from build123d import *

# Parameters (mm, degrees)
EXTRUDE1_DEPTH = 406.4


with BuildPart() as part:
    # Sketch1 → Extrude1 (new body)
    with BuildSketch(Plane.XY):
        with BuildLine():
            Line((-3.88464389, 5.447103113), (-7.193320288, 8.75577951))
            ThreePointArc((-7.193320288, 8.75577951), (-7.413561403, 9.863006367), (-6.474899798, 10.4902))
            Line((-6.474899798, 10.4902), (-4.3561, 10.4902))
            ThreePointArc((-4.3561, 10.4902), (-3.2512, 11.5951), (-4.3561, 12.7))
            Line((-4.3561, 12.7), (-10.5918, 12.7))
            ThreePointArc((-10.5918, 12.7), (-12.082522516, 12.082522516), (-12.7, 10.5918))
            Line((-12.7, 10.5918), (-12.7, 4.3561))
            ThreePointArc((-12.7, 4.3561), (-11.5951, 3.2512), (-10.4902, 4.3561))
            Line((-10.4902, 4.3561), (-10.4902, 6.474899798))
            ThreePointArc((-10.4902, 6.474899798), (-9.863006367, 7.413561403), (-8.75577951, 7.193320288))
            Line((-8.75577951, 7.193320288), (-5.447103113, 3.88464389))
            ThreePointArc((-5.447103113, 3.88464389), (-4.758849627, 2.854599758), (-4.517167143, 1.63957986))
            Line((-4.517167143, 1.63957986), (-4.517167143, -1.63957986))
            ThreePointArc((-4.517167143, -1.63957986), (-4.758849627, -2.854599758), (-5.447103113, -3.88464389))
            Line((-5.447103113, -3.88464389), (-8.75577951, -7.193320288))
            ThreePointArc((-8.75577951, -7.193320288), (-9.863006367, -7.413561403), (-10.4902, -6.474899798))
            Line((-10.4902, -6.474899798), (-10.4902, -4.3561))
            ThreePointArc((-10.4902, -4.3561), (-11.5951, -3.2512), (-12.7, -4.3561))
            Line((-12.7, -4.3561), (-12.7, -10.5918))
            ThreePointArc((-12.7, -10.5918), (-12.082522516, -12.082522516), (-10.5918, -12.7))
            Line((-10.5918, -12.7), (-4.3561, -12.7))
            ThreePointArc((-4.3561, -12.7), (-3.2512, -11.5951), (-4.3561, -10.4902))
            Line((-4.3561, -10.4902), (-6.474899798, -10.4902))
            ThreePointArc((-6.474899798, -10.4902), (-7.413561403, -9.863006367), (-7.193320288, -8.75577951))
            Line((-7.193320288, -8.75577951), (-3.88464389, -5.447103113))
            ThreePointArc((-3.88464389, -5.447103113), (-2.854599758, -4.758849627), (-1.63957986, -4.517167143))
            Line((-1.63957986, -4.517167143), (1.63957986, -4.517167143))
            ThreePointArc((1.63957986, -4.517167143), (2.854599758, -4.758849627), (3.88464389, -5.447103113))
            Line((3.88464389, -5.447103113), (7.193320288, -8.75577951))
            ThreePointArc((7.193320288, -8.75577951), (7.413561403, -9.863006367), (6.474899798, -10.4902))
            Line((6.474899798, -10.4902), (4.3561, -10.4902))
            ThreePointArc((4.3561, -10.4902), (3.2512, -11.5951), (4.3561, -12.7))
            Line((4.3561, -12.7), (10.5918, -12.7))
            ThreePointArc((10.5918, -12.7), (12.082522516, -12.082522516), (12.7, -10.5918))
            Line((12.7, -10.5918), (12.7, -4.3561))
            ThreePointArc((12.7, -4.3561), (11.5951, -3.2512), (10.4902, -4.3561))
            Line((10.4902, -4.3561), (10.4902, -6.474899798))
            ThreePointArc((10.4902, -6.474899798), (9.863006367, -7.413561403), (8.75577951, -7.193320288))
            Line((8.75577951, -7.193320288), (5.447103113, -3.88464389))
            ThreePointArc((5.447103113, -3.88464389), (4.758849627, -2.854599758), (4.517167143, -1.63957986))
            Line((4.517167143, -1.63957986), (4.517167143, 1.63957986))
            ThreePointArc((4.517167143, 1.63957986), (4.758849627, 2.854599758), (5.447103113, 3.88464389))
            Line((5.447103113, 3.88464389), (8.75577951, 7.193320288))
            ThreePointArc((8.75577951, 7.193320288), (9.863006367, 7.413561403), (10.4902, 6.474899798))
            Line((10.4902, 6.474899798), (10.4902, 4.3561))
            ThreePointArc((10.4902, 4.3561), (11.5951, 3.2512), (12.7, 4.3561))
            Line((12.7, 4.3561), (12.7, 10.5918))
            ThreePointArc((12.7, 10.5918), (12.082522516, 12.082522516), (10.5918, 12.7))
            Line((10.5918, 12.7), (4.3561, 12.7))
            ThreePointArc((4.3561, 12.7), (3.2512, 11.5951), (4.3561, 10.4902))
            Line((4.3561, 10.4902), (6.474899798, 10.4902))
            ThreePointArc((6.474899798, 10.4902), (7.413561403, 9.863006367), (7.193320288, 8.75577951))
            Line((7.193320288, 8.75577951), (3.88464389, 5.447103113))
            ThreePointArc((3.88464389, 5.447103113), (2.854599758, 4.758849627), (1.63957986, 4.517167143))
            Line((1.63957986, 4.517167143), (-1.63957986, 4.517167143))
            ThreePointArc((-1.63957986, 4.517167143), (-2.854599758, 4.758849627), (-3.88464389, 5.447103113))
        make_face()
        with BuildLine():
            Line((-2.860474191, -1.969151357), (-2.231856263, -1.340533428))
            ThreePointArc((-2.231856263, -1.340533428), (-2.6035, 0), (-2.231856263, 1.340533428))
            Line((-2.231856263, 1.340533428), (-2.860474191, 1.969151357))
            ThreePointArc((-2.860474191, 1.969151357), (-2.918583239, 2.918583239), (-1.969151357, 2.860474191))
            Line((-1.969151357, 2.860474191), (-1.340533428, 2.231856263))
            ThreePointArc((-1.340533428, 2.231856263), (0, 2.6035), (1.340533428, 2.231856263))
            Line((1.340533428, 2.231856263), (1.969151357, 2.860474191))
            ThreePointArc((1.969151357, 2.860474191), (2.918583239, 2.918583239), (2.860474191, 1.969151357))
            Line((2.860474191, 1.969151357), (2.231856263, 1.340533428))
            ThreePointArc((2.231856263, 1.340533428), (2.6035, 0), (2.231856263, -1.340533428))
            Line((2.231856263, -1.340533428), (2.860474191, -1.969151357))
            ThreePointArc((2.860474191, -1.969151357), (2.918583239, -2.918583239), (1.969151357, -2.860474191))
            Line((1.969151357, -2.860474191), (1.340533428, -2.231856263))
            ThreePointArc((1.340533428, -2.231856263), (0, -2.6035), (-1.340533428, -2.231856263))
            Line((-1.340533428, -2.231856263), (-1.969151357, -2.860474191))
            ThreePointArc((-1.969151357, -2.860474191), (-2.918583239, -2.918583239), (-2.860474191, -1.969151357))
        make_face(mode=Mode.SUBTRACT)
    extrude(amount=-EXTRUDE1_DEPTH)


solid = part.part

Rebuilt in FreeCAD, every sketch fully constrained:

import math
import FreeCAD as App
import Part
import Sketcher
Q = App.Units.Quantity

doc = App.newDocument("Part")
body = doc.addObject("PartDesign::Body", "Body")

sketch1 = body.newObject("Sketcher::SketchObject", "Sketch")
sketch1.AttachmentSupport = (doc.getObject("XY_Plane"), [""])
sketch1.MapMode = "FlatFace"
sketch1.addGeometry([
    Part.LineSegment(App.Vector(-3.884644, 5.447103, 0), App.Vector(-7.19332, 8.75578, 0)),
    Part.ArcOfCircle(Part.Circle(App.Vector(-6.4749, 9.4742, 0), App.Vector(0, 0, 1), 1.016), math.radians(90), math.radians(225)),
    Part.LineSegment(App.Vector(-6.4749, 10.4902, 0), App.Vector(-4.3561, 10.4902, 0)),
    Part.ArcOfCircle(Part.Circle(App.Vector(-4.3561, 11.5951, 0), App.Vector(0, 0, 1), 1.1049), math.radians(-90), math.radians(90)),
    Part.LineSegment(App.Vector(-4.3561, 12.7, 0), App.Vector(-10.5918, 12.7, 0)),
    Part.ArcOfCircle(Part.Circle(App.Vector(-10.5918, 10.5918, 0), App.Vector(0, 0, 1), 2.1082), math.radians(90), math.radians(180)),
    Part.LineSegment(App.Vector(-12.7, 10.5918, 0), App.Vector(-12.7, 4.3561, 0)),
    Part.ArcOfCircle(Part.Circle(App.Vector(-11.5951, 4.3561, 0), App.Vector(0, 0, 1), 1.1049), math.radians(180), math.radians(360)),
    Part.LineSegment(App.Vector(-10.4902, 4.3561, 0), App.Vector(-10.4902, 6.4749, 0)),
    Part.ArcOfCircle(Part.Circle(App.Vector(-9.4742, 6.4749, 0), App.Vector(0, 0, 1), 1.016), math.radians(45), math.radians(180)),
    Part.LineSegment(App.Vector(-8.75578, 7.19332, 0), App.Vector(-5.447103, 3.884644, 0)),
    Part.ArcOfCircle(Part.Circle(App.Vector(-7.692167, 1.63958, 0), App.Vector(0, 0, 1), 3.175), math.radians(0), math.radians(45)),
    Part.LineSegment(App.Vector(-4.517167, 1.63958, 0), App.Vector(-4.517167, -1.63958, 0)),
    Part.ArcOfCircle(Part.Circle(App.Vector(-7.692167, -1.63958, 0), App.Vector(0, 0, 1), 3.175), math.radians(-45), math.radians(0)),
    Part.LineSegment(App.Vector(-5.447103, -3.884644, 0), App.Vector(-8.75578, -7.19332, 0)),
    Part.ArcOfCircle(Part.Circle(App.Vector(-9.4742, -6.4749, 0), App.Vector(0, 0, 1), 1.016), math.radians(180), math.radians(315)),
    Part.LineSegment(App.Vector(-10.4902, -6.4749, 0), App.Vector(-10.4902, -4.3561, 0)),
    Part.ArcOfCircle(Part.Circle(App.Vector(-11.5951, -4.3561, 0), App.Vector(0, 0, 1), 1.1049), math.radians(0), math.radians(180)),
    Part.LineSegment(App.Vector(-12.7, -4.3561, 0), App.Vector(-12.7, -10.5918, 0)),
    Part.ArcOfCircle(Part.Circle(App.Vector(-10.5918, -10.5918, 0), App.Vector(0, 0, 1), 2.1082), math.radians(180), math.radians(270)),
    Part.LineSegment(App.Vector(-10.5918, -12.7, 0), App.Vector(-4.3561, -12.7, 0)),
    Part.ArcOfCircle(Part.Circle(App.Vector(-4.3561, -11.5951, 0), App.Vector(0, 0, 1), 1.1049), math.radians(-90), math.radians(90)),
    Part.LineSegment(App.Vector(-4.3561, -10.4902, 0), App.Vector(-6.4749, -10.4902, 0)),
    Part.ArcOfCircle(Part.Circle(App.Vector(-6.4749, -9.4742, 0), App.Vector(0, 0, 1), 1.016), math.radians(135), math.radians(270)),
    Part.LineSegment(App.Vector(-7.19332, -8.75578, 0), App.Vector(-3.884644, -5.447103, 0)),
    Part.ArcOfCircle(Part.Circle(App.Vector(-1.63958, -7.692167, 0), App.Vector(0, 0, 1), 3.175), math.radians(90), math.radians(135)),
    Part.LineSegment(App.Vector(-1.63958, -4.517167, 0), App.Vector(1.63958, -4.517167, 0)),
    Part.ArcOfCircle(Part.Circle(App.Vector(1.63958, -7.692167, 0), App.Vector(0, 0, 1), 3.175), math.radians(45), math.radians(90)),
    Part.LineSegment(App.Vector(3.884644, -5.447103, 0), App.Vector(7.19332, -8.75578, 0)),
    Part.ArcOfCircle(Part.Circle(App.Vector(6.4749, -9.4742, 0), App.Vector(0, 0, 1), 1.016), math.radians(-90), math.radians(45)),
    Part.LineSegment(App.Vector(6.4749, -10.4902, 0), App.Vector(4.3561, -10.4902, 0)),
    Part.ArcOfCircle(Part.Circle(App.Vector(4.3561, -11.5951, 0), App.Vector(0, 0, 1), 1.1049), math.radians(90), math.radians(270)),
    Part.LineSegment(App.Vector(4.3561, -12.7, 0), App.Vector(10.5918, -12.7, 0)),
    Part.ArcOfCircle(Part.Circle(App.Vector(10.5918, -10.5918, 0), App.Vector(0, 0, 1), 2.1082), math.radians(-90), math.radians(0)),
    Part.LineSegment(App.Vector(12.7, -10.5918, 0), App.Vector(12.7, -4.3561, 0)),
    Part.ArcOfCircle(Part.Circle(App.Vector(11.5951, -4.3561, 0), App.Vector(0, 0, 1), 1.1049), math.radians(0), math.radians(180)),
    Part.LineSegment(App.Vector(10.4902, -4.3561, 0), App.Vector(10.4902, -6.4749, 0)),
    Part.ArcOfCircle(Part.Circle(App.Vector(9.4742, -6.4749, 0), App.Vector(0, 0, 1), 1.016), math.radians(-135), math.radians(0)),
    Part.LineSegment(App.Vector(8.75578, -7.19332, 0), App.Vector(5.447103, -3.884644, 0)),
    Part.ArcOfCircle(Part.Circle(App.Vector(7.692167, -1.63958, 0), App.Vector(0, 0, 1), 3.175), math.radians(180), math.radians(225)),
    Part.LineSegment(App.Vector(4.517167, -1.63958, 0), App.Vector(4.517167, 1.63958, 0)),
    Part.ArcOfCircle(Part.Circle(App.Vector(7.692167, 1.63958, 0), App.Vector(0, 0, 1), 3.175), math.radians(135), math.radians(180)),
    Part.LineSegment(App.Vector(5.447103, 3.884644, 0), App.Vector(8.75578, 7.19332, 0)),
    Part.ArcOfCircle(Part.Circle(App.Vector(9.4742, 6.4749, 0), App.Vector(0, 0, 1), 1.016), math.radians(0), math.radians(135)),
    Part.LineSegment(App.Vector(10.4902, 6.4749, 0), App.Vector(10.4902, 4.3561, 0)),
    Part.ArcOfCircle(Part.Circle(App.Vector(11.5951, 4.3561, 0), App.Vector(0, 0, 1), 1.1049), math.radians(180), math.radians(360)),
    Part.LineSegment(App.Vector(12.7, 4.3561, 0), App.Vector(12.7, 10.5918, 0)),
    Part.ArcOfCircle(Part.Circle(App.Vector(10.5918, 10.5918, 0), App.Vector(0, 0, 1), 2.1082), math.radians(0), math.radians(90)),
    Part.LineSegment(App.Vector(10.5918, 12.7, 0), App.Vector(4.3561, 12.7, 0)),
    Part.ArcOfCircle(Part.Circle(App.Vector(4.3561, 11.5951, 0), App.Vector(0, 0, 1), 1.1049), math.radians(90), math.radians(270)),
    Part.LineSegment(App.Vector(4.3561, 10.4902, 0), App.Vector(6.4749, 10.4902, 0)),
    Part.ArcOfCircle(Part.Circle(App.Vector(6.4749, 9.4742, 0), App.Vector(0, 0, 1), 1.016), math.radians(-45), math.radians(90)),
    Part.LineSegment(App.Vector(7.19332, 8.75578, 0), App.Vector(3.884644, 5.447103, 0)),
    Part.ArcOfCircle(Part.Circle(App.Vector(1.63958, 7.692167, 0), App.Vector(0, 0, 1), 3.175), math.radians(-90), math.radians(-45)),
    Part.LineSegment(App.Vector(1.63958, 4.517167, 0), App.Vector(-1.63958, 4.517167, 0)),
    Part.ArcOfCircle(Part.Circle(App.Vector(-1.63958, 7.692167, 0), App.Vector(0, 0, 1), 3.175), math.radians(-135), math.radians(-90)),
    Part.ArcOfCircle(Part.Circle(App.Vector(-2.46957, -2.46957, 0), App.Vector(0, 0, 1), 0.635), math.radians(127.995274), math.radians(322.004726)),
    Part.LineSegment(App.Vector(-2.860474, -1.969151, 0), App.Vector(-2.231856, -1.340533, 0)),
    Part.ArcOfCircle(Part.Circle(App.Vector(0, 0, 0), App.Vector(0, 0, 1), 2.6035), math.radians(149.009453), math.radians(210.990547)),
    Part.LineSegment(App.Vector(-2.231856, 1.340533, 0), App.Vector(-2.860474, 1.969151, 0)),
    Part.ArcOfCircle(Part.Circle(App.Vector(-2.46957, 2.46957, 0), App.Vector(0, 0, 1), 0.635), math.radians(37.995274), math.radians(232.004726)),
    Part.LineSegment(App.Vector(-1.969151, 2.860474, 0), App.Vector(-1.340533, 2.231856, 0)),
    Part.ArcOfCircle(Part.Circle(App.Vector(0, 0, 0), App.Vector(0, 0, 1), 2.6035), math.radians(59.009453), math.radians(120.990547)),
    Part.LineSegment(App.Vector(1.340533, 2.231856, 0), App.Vector(1.969151, 2.860474, 0)),
    Part.ArcOfCircle(Part.Circle(App.Vector(2.46957, 2.46957, 0), App.Vector(0, 0, 1), 0.635), math.radians(-52.004726), math.radians(142.004726)),
    Part.LineSegment(App.Vector(2.860474, 1.969151, 0), App.Vector(2.231856, 1.340533, 0)),
    Part.ArcOfCircle(Part.Circle(App.Vector(0, 0, 0), App.Vector(0, 0, 1), 2.6035), math.radians(-30.990547), math.radians(30.990547)),
    Part.LineSegment(App.Vector(2.231856, -1.340533, 0), App.Vector(2.860474, -1.969151, 0)),
    Part.ArcOfCircle(Part.Circle(App.Vector(2.46957, -2.46957, 0), App.Vector(0, 0, 1), 0.635), math.radians(-142.004726), math.radians(52.004726)),
    Part.LineSegment(App.Vector(1.969151, -2.860474, 0), App.Vector(1.340533, -2.231856, 0)),
    Part.ArcOfCircle(Part.Circle(App.Vector(0, 0, 0), App.Vector(0, 0, 1), 2.6035), math.radians(-120.990547), math.radians(-59.009453)),
    Part.LineSegment(App.Vector(-1.340533, -2.231856, 0), App.Vector(-1.969151, -2.860474, 0)),
], False)
sketch1.addConstraint([
    Sketcher.Constraint("Tangent", 0, 2, 1, 2),
    Sketcher.Constraint("Tangent", 1, 1, 2, 1),
    Sketcher.Constraint("Tangent", 2, 2, 3, 1),
    Sketcher.Constraint("Tangent", 3, 2, 4, 1),
    Sketcher.Constraint("Tangent", 4, 2, 5, 1),
    Sketcher.Constraint("Tangent", 5, 2, 6, 1),
    Sketcher.Constraint("Tangent", 6, 2, 7, 1),
    Sketcher.Constraint("Tangent", 7, 2, 8, 1),
    Sketcher.Constraint("Tangent", 8, 2, 9, 2),
    Sketcher.Constraint("Tangent", 9, 1, 10, 1),
    Sketcher.Constraint("Tangent", 10, 2, 11, 2),
    Sketcher.Constraint("Tangent", 11, 1, 12, 1),
    Sketcher.Constraint("Tangent", 12, 2, 13, 2),
    Sketcher.Constraint("Tangent", 13, 1, 14, 1),
    Sketcher.Constraint("Tangent", 14, 2, 15, 2),
    Sketcher.Constraint("Tangent", 15, 1, 16, 1),
    Sketcher.Constraint("Tangent", 16, 2, 17, 1),
    Sketcher.Constraint("Tangent", 17, 2, 18, 1),
    Sketcher.Constraint("Tangent", 18, 2, 19, 1),
    Sketcher.Constraint("Tangent", 19, 2, 20, 1),
    Sketcher.Constraint("Tangent", 20, 2, 21, 1),
    Sketcher.Constraint("Tangent", 21, 2, 22, 1),
    Sketcher.Constraint("Tangent", 22, 2, 23, 2),
    Sketcher.Constraint("Tangent", 23, 1, 24, 1),
    Sketcher.Constraint("Tangent", 24, 2, 25, 2),
    Sketcher.Constraint("Tangent", 25, 1, 26, 1),
    Sketcher.Constraint("Tangent", 26, 2, 27, 2),
    Sketcher.Constraint("Tangent", 27, 1, 28, 1),
    Sketcher.Constraint("Tangent", 28, 2, 29, 2),
    Sketcher.Constraint("Tangent", 29, 1, 30, 1),
    Sketcher.Constraint("Tangent", 30, 2, 31, 1),
    Sketcher.Constraint("Tangent", 31, 2, 32, 1),
    Sketcher.Constraint("Tangent", 32, 2, 33, 1),
    Sketcher.Constraint("Tangent", 33, 2, 34, 1),
    Sketcher.Constraint("Tangent", 34, 2, 35, 1),
    Sketcher.Constraint("Tangent", 35, 2, 36, 1),
    Sketcher.Constraint("Tangent", 36, 2, 37, 2),
    Sketcher.Constraint("Tangent", 37, 1, 38, 1),
    Sketcher.Constraint("Tangent", 38, 2, 39, 2),
    Sketcher.Constraint("Tangent", 39, 1, 40, 1),
    Sketcher.Constraint("Tangent", 40, 2, 41, 2),
    Sketcher.Constraint("Tangent", 41, 1, 42, 1),
    Sketcher.Constraint("Tangent", 42, 2, 43, 2),
    Sketcher.Constraint("Tangent", 43, 1, 44, 1),
    Sketcher.Constraint("Tangent", 44, 2, 45, 1),
    Sketcher.Constraint("Tangent", 45, 2, 46, 1),
    Sketcher.Constraint("Tangent", 46, 2, 47, 1),
    Sketcher.Constraint("Tangent", 47, 2, 48, 1),
    Sketcher.Constraint("Tangent", 48, 2, 49, 1),
    Sketcher.Constraint("Tangent", 49, 2, 50, 1),
    Sketcher.Constraint("Tangent", 50, 2, 51, 2),
    Sketcher.Constraint("Tangent", 51, 1, 52, 1),
    Sketcher.Constraint("Tangent", 52, 2, 53, 2),
    Sketcher.Constraint("Tangent", 53, 1, 54, 1),
    Sketcher.Constraint("Tangent", 54, 2, 55, 2),
    Sketcher.Constraint("Tangent", 55, 1, 0, 1),
    Sketcher.Constraint("Coincident", 56, 1, 57, 1),
    Sketcher.Constraint("Coincident", 57, 2, 58, 2),
    Sketcher.Constraint("Coincident", 58, 1, 59, 1),
    Sketcher.Constraint("Coincident", 59, 2, 60, 2),
    Sketcher.Constraint("Coincident", 60, 1, 61, 1),
    Sketcher.Constraint("Coincident", 61, 2, 62, 2),
    Sketcher.Constraint("Coincident", 62, 1, 63, 1),
    Sketcher.Constraint("Coincident", 63, 2, 64, 2),
    Sketcher.Constraint("Coincident", 64, 1, 65, 1),
    Sketcher.Constraint("Coincident", 65, 2, 66, 2),
    Sketcher.Constraint("Coincident", 66, 1, 67, 1),
    Sketcher.Constraint("Coincident", 67, 2, 68, 2),
    Sketcher.Constraint("Coincident", 68, 1, 69, 1),
    Sketcher.Constraint("Coincident", 69, 2, 70, 2),
    Sketcher.Constraint("Coincident", 70, 1, 71, 1),
    Sketcher.Constraint("Coincident", 71, 2, 56, 2),
    Sketcher.Constraint("Horizontal", 2),
    Sketcher.Constraint("Horizontal", 4),
    Sketcher.Constraint("Vertical", 6),
    Sketcher.Constraint("Vertical", 8),
    Sketcher.Constraint("Vertical", 12),
    Sketcher.Constraint("Vertical", 16),
    Sketcher.Constraint("Vertical", 18),
    Sketcher.Constraint("Horizontal", 20),
    Sketcher.Constraint("Horizontal", 22),
    Sketcher.Constraint("Horizontal", 26),
    Sketcher.Constraint("Horizontal", 30),
    Sketcher.Constraint("Horizontal", 32),
    Sketcher.Constraint("Vertical", 34),
    Sketcher.Constraint("Vertical", 36),
    Sketcher.Constraint("Vertical", 40),
    Sketcher.Constraint("Vertical", 44),
    Sketcher.Constraint("Vertical", 46),
    Sketcher.Constraint("Horizontal", 48),
    Sketcher.Constraint("Horizontal", 50),
    Sketcher.Constraint("Horizontal", 54),
    Sketcher.Constraint("Coincident", 58, 3, -1, 1),
    Sketcher.Constraint("Coincident", 62, 3, -1, 1),
    Sketcher.Constraint("Coincident", 66, 3, -1, 1),
    Sketcher.Constraint("Coincident", 70, 3, -1, 1),
    Sketcher.Constraint("Equal", 3, 7),
    Sketcher.Constraint("Equal", 1, 9),
    Sketcher.Constraint("Equal", 11, 13),
    Sketcher.Constraint("Equal", 9, 15),
    Sketcher.Constraint("Equal", 7, 17),
    Sketcher.Constraint("Equal", 5, 19),
    Sketcher.Constraint("Equal", 17, 21),
    Sketcher.Constraint("Equal", 15, 23),
    Sketcher.Constraint("Equal", 13, 25),
    Sketcher.Constraint("Equal", 25, 27),
    Sketcher.Constraint("Equal", 23, 29),
    Sketcher.Constraint("Equal", 21, 31),
    Sketcher.Constraint("Equal", 19, 33),
    Sketcher.Constraint("Equal", 31, 35),
    Sketcher.Constraint("Equal", 29, 37),
    Sketcher.Constraint("Equal", 27, 39),
    Sketcher.Constraint("Equal", 39, 41),
    Sketcher.Constraint("Equal", 37, 43),
    Sketcher.Constraint("Equal", 35, 45),
    Sketcher.Constraint("Equal", 33, 47),
    Sketcher.Constraint("Equal", 45, 49),
    Sketcher.Constraint("Equal", 43, 51),
    Sketcher.Constraint("Equal", 41, 53),
    Sketcher.Constraint("Equal", 53, 55),
    Sketcher.Constraint("Equal", 56, 60),
    Sketcher.Constraint("Equal", 58, 62),
    Sketcher.Constraint("Equal", 60, 64),
    Sketcher.Constraint("Equal", 62, 66),
    Sketcher.Constraint("Equal", 64, 68),
    Sketcher.Constraint("Equal", 66, 70),
    Sketcher.Constraint("Symmetric", 1, 3, 29, 3, -1, 1),
    Sketcher.Constraint("Symmetric", 7, 3, 35, 3, -1, 1),
    Sketcher.Constraint("Symmetric", 11, 3, 39, 3, -1, 1),
    Sketcher.Constraint("Symmetric", 15, 3, 43, 3, -1, 1),
    Sketcher.Constraint("Symmetric", 21, 3, 49, 3, -1, 1),
    Sketcher.Constraint("Symmetric", 25, 3, 53, 3, -1, 1),
    Sketcher.Constraint("Symmetric", 56, 3, 64, 3, -1, 1),
    Sketcher.Constraint("Symmetric", 60, 3, 68, 3, -1, 1),
    Sketcher.Constraint("Symmetric", 23, 3, 29, 3, -2),
    Sketcher.Constraint("Symmetric", 17, 3, 35, 3, -2),
    Sketcher.Constraint("Symmetric", 60, 3, 64, 3, -2),
    Sketcher.Constraint("Symmetric", 14, 2, 37, 1, -2),
    Sketcher.Constraint("Symmetric", 10, 2, 41, 1, -2),
    Sketcher.Constraint("Symmetric", 0, 2, 51, 1, -2),
    Sketcher.Constraint("Parallel", 0, 10),
    Sketcher.Constraint("Perpendicular", 10, 14),
    Sketcher.Constraint("Perpendicular", 24, 28),
    Sketcher.Constraint("Parallel", 52, 57),
    Sketcher.Constraint("Perpendicular", 57, 59),
    Sketcher.Constraint("Parallel", 59, 61),
    Sketcher.Constraint("Perpendicular", 61, 63),
    Sketcher.Constraint("Parallel", 63, 65),
    Sketcher.Constraint("Perpendicular", 65, 67),
    Sketcher.Constraint("Parallel", 67, 69),
    Sketcher.Constraint("Perpendicular", 69, 71),
    Sketcher.Constraint("Horizontal", 7, 3, 45, 3),
    Sketcher.Constraint("Horizontal", 61, 2, 62, 1),
    Sketcher.Constraint("Horizontal", 59, 2, 64, 1),
    Sketcher.Constraint("Horizontal", 57, 2, 66, 1),
    Sketcher.Constraint("Horizontal", 69, 2, 70, 1),
    Sketcher.Constraint("Vertical", 3, 3, 21, 3),
    Sketcher.Constraint("Vertical", 31, 3, 49, 3),
    Sketcher.Constraint("Vertical", 57, 2, 58, 1),
    Sketcher.Constraint("Vertical", 63, 2, 68, 1),
    Sketcher.Constraint("Equal", 48, 6),
    Sketcher.Constraint("Equal", 50, 8),
    Sketcher.Constraint("Equal", 54, 12),
    Sketcher.Constraint("Equal", 0, 10),
    Sketcher.Constraint("Equal", 59, 61),
    Sketcher.Constraint("Radius", 1, Q("0.04 in")),
    Sketcher.Constraint("Radius", 5, Q("0.083 in")),
    Sketcher.Constraint("Radius", 11, Q("0.125 in")),
    Sketcher.Constraint("Radius", 56, Q("0.025 in")),
    Sketcher.Constraint("DistanceY", -1, 1, 3, 2, Q("0.5 in")),
    Sketcher.Constraint("Radius", 3, Q("0.0435 in")),
    Sketcher.Constraint("Radius", 58, Q("0.1025 in")),
    Sketcher.Constraint("Distance", 57, Q("0.035 in")),
    Sketcher.Constraint("DistanceX", 4, 2, 4, 1, Q("0.2455 in")),
    Sketcher.Constraint("DistanceX", 2, 1, 2, 2, 2.1188),
    Sketcher.Constraint("DistanceX", 26, 1, 26, 2, 3.27916),
    Sketcher.Constraint("DistanceX", 56, 3, -1, 1, 2.46957),
    Sketcher.Constraint("DistanceY", 56, 3, -1, 1, 2.46957),
])
pad1 = body.newObject("PartDesign::Pad", "Pad")
pad1.Profile = sketch1
pad1.Length = Q("16 in")
pad1.Reversed = True

doc.recompute()
